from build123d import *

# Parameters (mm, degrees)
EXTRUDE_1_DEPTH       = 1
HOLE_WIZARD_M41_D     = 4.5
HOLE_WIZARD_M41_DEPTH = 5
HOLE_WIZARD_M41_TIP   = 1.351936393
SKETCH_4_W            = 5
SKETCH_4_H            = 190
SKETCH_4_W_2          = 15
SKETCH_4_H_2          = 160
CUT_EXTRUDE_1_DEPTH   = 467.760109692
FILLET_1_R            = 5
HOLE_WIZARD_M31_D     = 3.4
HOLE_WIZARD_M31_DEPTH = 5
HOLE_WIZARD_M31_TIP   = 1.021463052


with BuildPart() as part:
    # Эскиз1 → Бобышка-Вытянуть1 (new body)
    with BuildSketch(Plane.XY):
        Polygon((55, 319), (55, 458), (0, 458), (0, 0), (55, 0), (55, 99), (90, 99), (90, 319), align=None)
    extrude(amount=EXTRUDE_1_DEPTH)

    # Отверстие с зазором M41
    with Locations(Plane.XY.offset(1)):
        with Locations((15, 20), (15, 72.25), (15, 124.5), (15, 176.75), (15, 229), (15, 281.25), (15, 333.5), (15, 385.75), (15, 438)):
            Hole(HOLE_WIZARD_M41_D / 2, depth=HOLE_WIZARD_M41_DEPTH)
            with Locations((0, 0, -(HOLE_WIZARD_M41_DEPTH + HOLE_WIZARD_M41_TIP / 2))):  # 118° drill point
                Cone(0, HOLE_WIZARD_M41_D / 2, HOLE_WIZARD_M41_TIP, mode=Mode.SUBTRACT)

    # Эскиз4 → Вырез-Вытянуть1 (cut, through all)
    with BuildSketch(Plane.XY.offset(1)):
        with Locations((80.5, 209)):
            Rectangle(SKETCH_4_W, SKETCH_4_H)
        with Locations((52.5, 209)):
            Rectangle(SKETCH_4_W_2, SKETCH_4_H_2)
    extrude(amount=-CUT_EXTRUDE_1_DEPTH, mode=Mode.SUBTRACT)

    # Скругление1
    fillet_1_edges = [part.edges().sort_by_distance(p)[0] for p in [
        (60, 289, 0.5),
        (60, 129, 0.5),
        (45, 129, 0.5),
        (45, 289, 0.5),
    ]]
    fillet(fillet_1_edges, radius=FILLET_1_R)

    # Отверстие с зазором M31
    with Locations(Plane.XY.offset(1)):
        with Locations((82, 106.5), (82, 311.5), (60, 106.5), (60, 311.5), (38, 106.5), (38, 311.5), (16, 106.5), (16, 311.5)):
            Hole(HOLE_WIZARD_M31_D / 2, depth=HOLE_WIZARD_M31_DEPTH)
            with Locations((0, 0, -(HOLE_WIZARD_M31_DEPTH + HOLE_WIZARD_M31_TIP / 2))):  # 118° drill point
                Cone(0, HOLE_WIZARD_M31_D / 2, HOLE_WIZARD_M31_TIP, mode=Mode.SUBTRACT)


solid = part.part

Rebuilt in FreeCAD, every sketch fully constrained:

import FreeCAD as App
import Part
import Sketcher

V = App.Vector
Q = App.Units.Quantity


def edges_at(feature, points):
    """Names of the edges that pass closest to the given points."""
    edges = feature.Shape.Edges
    near = lambda p: min(range(len(edges)), key=lambda i: edges[i].distToShape(Part.Vertex(*p))[0])
    return sorted({f"Edge{near(p) + 1}" for p in points})

doc = App.newDocument("Part")
body = doc.addObject("PartDesign::Body", "Body")

sketch1 = doc.addObject("Sketcher::SketchObject", "Sketch")
body.addObject(sketch1)
sketch1.AttachmentSupport = (doc.XY_Plane, [""])
sketch1.MapMode = "FlatFace"
sketch1.addGeometry(Part.LineSegment(V(55, 319, 0), V(55, 458, 0)), False)
sketch1.addGeometry(Part.LineSegment(V(55, 458, 0), V(0, 458, 0)), False)
sketch1.addGeometry(Part.LineSegment(V(0, 458, 0), V(0, 0, 0)), False)
sketch1.addGeometry(Part.LineSegment(V(0, 0, 0), V(55, 0, 0)), False)
sketch1.addGeometry(Part.LineSegment(V(55, 0, 0), V(55, 99, 0)), False)
sketch1.addGeometry(Part.LineSegment(V(55, 99, 0), V(90, 99, 0)), False)
sketch1.addGeometry(Part.LineSegment(V(90, 99, 0), V(90, 319, 0)), False)
sketch1.addGeometry(Part.LineSegment(V(90, 319, 0), V(55, 319, 0)), False)
sketch1.addConstraint(Sketcher.Constraint("Coincident", 0, 2, 1, 1))
sketch1.addConstraint(Sketcher.Constraint("Coincident", 1, 2, 2, 1))
sketch1.addConstraint(Sketcher.Constraint("Coincident", 2, 2, 3, 1))
sketch1.addConstraint(Sketcher.Constraint("Coincident", 3, 2, 4, 1))
sketch1.addConstraint(Sketcher.Constraint("Coincident", 4, 2, 5, 1))
sketch1.addConstraint(Sketcher.Constraint("Coincident", 5, 2, 6, 1))
sketch1.addConstraint(Sketcher.Constraint("Coincident", 6, 2, 7, 1))
sketch1.addConstraint(Sketcher.Constraint("Coincident", 7, 2, 0, 1))
sketch1.addConstraint(Sketcher.Constraint("Vertical", 0))
sketch1.addConstraint(Sketcher.Constraint("Horizontal", 1))
sketch1.addConstraint(Sketcher.Constraint("Vertical", 2))
sketch1.addConstraint(Sketcher.Constraint("Horizontal", 3))
sketch1.addConstraint(Sketcher.Constraint("Vertical", 4))
sketch1.addConstraint(Sketcher.Constraint("Horizontal", 5))
sketch1.addConstraint(Sketcher.Constraint("Vertical", 6))
sketch1.addConstraint(Sketcher.Constraint("Horizontal", 7))
sketch1.addConstraint(Sketcher.Constraint("Coincident", 2, 2, -1, 1))
sketch1.addConstraint(Sketcher.Constraint("Vertical", 0, 2, 3, 2))
sketch1.addConstraint(Sketcher.Constraint("DistanceX", 1, 2, 1, 1, Q("55 mm")))
sketch1.addConstraint(Sketcher.Constraint("DistanceX", 5, 1, 5, 2, Q("35 mm")))
sketch1.addConstraint(Sketcher.Constraint("DistanceY", 0, 1, 0, 2, Q("139 mm")))
sketch1.addConstraint(Sketcher.Constraint("DistanceY", 2, 2, 2, 1, Q("458 mm")))
sketch1.addConstraint(Sketcher.Constraint("DistanceY", 4, 1, 4, 2, Q("99 mm")))
pad1 = doc.addObject("PartDesign::Pad", "Pad")
body.addObject(pad1)
pad1.Profile = sketch1
pad1.Length = 1

sketch2 = doc.addObject("Sketcher::SketchObject", "Sketch001")
body.addObject(sketch2)
sketch2.AttachmentSupport = (doc.XY_Plane, [""])
sketch2.MapMode = "FlatFace"
sketch2.AttachmentOffset = App.Placement(V(0, 0, 1), App.Rotation())
sketch2.addGeometry(Part.Circle(V(15, 20, 0), V(0, 0, 1), 2.25), False)
sketch2.addGeometry(Part.Circle(V(15, 72.25, 0), V(0, 0, 1), 2.25), False)
sketch2.addGeometry(Part.Circle(V(15, 124.5, 0), V(0, 0, 1), 2.25), False)
sketch2.addGeometry(Part.Circle(V(15, 176.75, 0), V(0, 0, 1), 2.25), False)
sketch2.addGeometry(Part.Circle(V(15, 229, 0), V(0, 0, 1), 2.25), False)
sketch2.addGeometry(Part.Circle(V(15, 281.25, 0), V(0, 0, 1), 2.25), False)
sketch2.addGeometry(Part.Circle(V(15, 333.5, 0), V(0, 0, 1), 2.25), False)
sketch2.addGeometry(Part.Circle(V(15, 385.75, 0), V(0, 0, 1), 2.25), False)
sketch2.addGeometry(Part.Circle(V(15, 438, 0), V(0, 0, 1), 2.25), False)
sketch2.addConstraint(Sketcher.Constraint("Equal", 0, 1))
sketch2.addConstraint(Sketcher.Constraint("Equal", 1, 2))
sketch2.addConstraint(Sketcher.Constraint("Equal", 2, 3))
sketch2.addConstraint(Sketcher.Constraint("Equal", 3, 4))
sketch2.addConstraint(Sketcher.Constraint("Equal", 4, 5))
sketch2.addConstraint(Sketcher.Constraint("Equal", 5, 6))
sketch2.addConstraint(Sketcher.Constraint("Equal", 6, 7))
sketch2.addConstraint(Sketcher.Constraint("Equal", 7, 8))
sketch2.addConstraint(Sketcher.Constraint("Vertical", 0, 3, 1, 3))
sketch2.addConstraint(Sketcher.Constraint("Vertical", 1, 3, 2, 3))
sketch2.addConstraint(Sketcher.Constraint("Vertical", 2, 3, 3, 3))
sketch2.addConstraint(Sketcher.Constraint("Vertical", 3, 3, 4, 3))
sketch2.addConstraint(Sketcher.Constraint("Vertical", 4, 3, 5, 3))
sketch2.addConstraint(Sketcher.Constraint("Vertical", 5, 3, 6, 3))
sketch2.addConstraint(Sketcher.Constraint("Vertical", 6, 3, 7, 3))
sketch2.addConstraint(Sketcher.Constraint("Vertical", 7, 3, 8, 3))
sketch2.addConstraint(Sketcher.Constraint("Diameter", 0, Q("4.5 mm")))
sketch2.addConstraint(Sketcher.Constraint("DistanceX", -1, 1, 0, 3, Q("15 mm")))
sketch2.addConstraint(Sketcher.Constraint("DistanceY", -1, 1, 0, 3, Q("20 mm")))
sketch2.addConstraint(Sketcher.Constraint("DistanceY", -1, 1, 4, 3, Q("229 mm")))
sketch2.addConstraint(Sketcher.Constraint("DistanceY", -1, 1, 8, 3, Q("438 mm")))
sketch2.addConstraint(Sketcher.Constraint("DistanceY", 1, 3, 5, 3, Q("209 mm")))
sketch2.addConstraint(Sketcher.Constraint("DistanceY", 2, 3, 6, 3, Q("209 mm")))
sketch2.addConstraint(Sketcher.Constraint("DistanceY", 3, 3, 7, 3, Q("209 mm")))
sketch2.addConstraint(Sketcher.Constraint("DistanceY", -1, 1, 2, 3, Q("124.5 mm")))
sketch2.addConstraint(Sketcher.Constraint("DistanceY", 1, 3, 3, 3, Q("104.5 mm")))
sketch2.addConstraint(Sketcher.Constraint("DistanceY", -1, 1, 1, 3, Q("72.25 mm")))
doc.recompute()
hole = doc.addObject("PartDesign::Hole", "Hole")
body.addObject(hole)
hole.Profile = sketch2
hole.ThreadType = "None"
hole.Diameter = 4.5
hole.DepthType = "Dimension"
hole.Depth = 5
hole.DrillPoint = "Angled"
hole.DrillPointAngle = 118

sketch3 = doc.addObject("Sketcher::SketchObject", "Sketch002")
body.addObject(sketch3)
sketch3.AttachmentSupport = (doc.XY_Plane, [""])
sketch3.MapMode = "FlatFace"
sketch3.AttachmentOffset = App.Placement(V(0, 0, 1), App.Rotation())
sketch3.addGeometry(Part.LineSegment(V(78, 304, 0), V(78, 114, 0)), False)
sketch3.addGeometry(Part.LineSegment(V(78, 114, 0), V(83, 114, 0)), False)
sketch3.addGeometry(Part.LineSegment(V(83, 114, 0), V(83, 304, 0)), False)
sketch3.addGeometry(Part.LineSegment(V(83, 304, 0), V(78, 304, 0)), False)
sketch3.addGeometry(Part.LineSegment(V(45, 289, 0), V(45, 129, 0)), False)
sketch3.addGeometry(Part.LineSegment(V(45, 129, 0), V(60, 129, 0)), False)
sketch3.addGeometry(Part.LineSegment(V(60, 129, 0), V(60, 289, 0)), False)
sketch3.addGeometry(Part.LineSegment(V(60, 289, 0), V(45, 289, 0)), False)
sketch3.addConstraint(Sketcher.Constraint("Coincident", 0, 2, 1, 1))
sketch3.addConstraint(Sketcher.Constraint("Coincident", 1, 2, 2, 1))
sketch3.addConstraint(Sketcher.Constraint("Coincident", 2, 2, 3, 1))
sketch3.addConstraint(Sketcher.Constraint("Coincident", 3, 2, 0, 1))
sketch3.addConstraint(Sketcher.Constraint("Coincident", 4, 2, 5, 1))
sketch3.addConstraint(Sketcher.Constraint("Coincident", 5, 2, 6, 1))
sketch3.addConstraint(Sketcher.Constraint("Coincident", 6, 2, 7, 1))
sketch3.addConstraint(Sketcher.Constraint("Coincident", 7, 2, 4, 1))
sketch3.addConstraint(Sketcher.Constraint("Vertical", 0))
sketch3.addConstraint(Sketcher.Constraint("Horizontal", 1))
sketch3.addConstraint(Sketcher.Constraint("Vertical", 2))
sketch3.addConstraint(Sketcher.Constraint("Horizontal", 3))
sketch3.addConstraint(Sketcher.Constraint("Vertical", 4))
sketch3.addConstraint(Sketcher.Constraint("Horizontal", 5))
sketch3.addConstraint(Sketcher.Constraint("Vertical", 6))
sketch3.addConstraint(Sketcher.Constraint("Horizontal", 7))
sketch3.addConstraint(Sketcher.Constraint("DistanceX", 1, 1, 1, 2, Q("5 mm")))
sketch3.addConstraint(Sketcher.Constraint("DistanceX", 5, 1, 5, 2, Q("15 mm")))
sketch3.addConstraint(Sketcher.Constraint("DistanceY", 0, 2, 0, 1, Q("190 mm")))
sketch3.addConstraint(Sketcher.Constraint("DistanceY", 4, 2, 4, 1, Q("160 mm")))
sketch3.addConstraint(Sketcher.Constraint("DistanceX", -1, 1, 0, 2, Q("78 mm")))
sketch3.addConstraint(Sketcher.Constraint("DistanceY", -1, 1, 0, 2, Q("114 mm")))
sketch3.addConstraint(Sketcher.Constraint("DistanceX", -1, 1, 4, 2, Q("45 mm")))
sketch3.addConstraint(Sketcher.Constraint("DistanceY", -1, 1, 4, 2, Q("129 mm")))
pocket1 = doc.addObject("PartDesign::Pocket", "Pocket")
body.addObject(pocket1)
pocket1.Profile = sketch3
pocket1.Type = "ThroughAll"
doc.recompute()

fillet = doc.addObject("PartDesign::Fillet", "Fillet")
body.addObject(fillet)
fillet.Base = (pocket1, edges_at(pocket1, [
    (60, 289, 0.5),
    (60, 129, 0.5),
    (45, 129, 0.5),
    (45, 289, 0.5),
]))
fillet.Radius = 5

sketch4 = doc.addObject("Sketcher::SketchObject", "Sketch003")
body.addObject(sketch4)
sketch4.AttachmentSupport = (doc.XY_Plane, [""])
sketch4.MapMode = "FlatFace"
sketch4.AttachmentOffset = App.Placement(V(0, 0, 1), App.Rotation())
sketch4.addGeometry(Part.Circle(V(82, 106.5, 0), V(0, 0, 1), 1.7), False)
sketch4.addGeometry(Part.Circle(V(82, 311.5, 0), V(0, 0, 1), 1.7), False)
sketch4.addGeometry(Part.Circle(V(60, 106.5, 0), V(0, 0, 1), 1.7), False)
sketch4.addGeometry(Part.Circle(V(60, 311.5, 0), V(0, 0, 1), 1.7), False)
sketch4.addGeometry(Part.Circle(V(38, 106.5, 0), V(0, 0, 1), 1.7), False)
sketch4.addGeometry(Part.Circle(V(38, 311.5, 0), V(0, 0, 1), 1.7), False)
sketch4.addGeometry(Part.Circle(V(16, 106.5, 0), V(0, 0, 1), 1.7), False)
sketch4.addGeometry(Part.Circle(V(16, 311.5, 0), V(0, 0, 1), 1.7), False)
sketch4.addConstraint(Sketcher.Constraint("Equal", 0, 1))
sketch4.addConstraint(Sketcher.Constraint("Equal", 1, 2))
sketch4.addConstraint(Sketcher.Constraint("Equal", 2, 3))
sketch4.addConstraint(Sketcher.Constraint("Equal", 3, 4))
sketch4.addConstraint(Sketcher.Constraint("Equal", 4, 5))
sketch4.addConstraint(Sketcher.Constraint("Equal", 5, 6))
sketch4.addConstraint(Sketcher.Constraint("Equal", 6, 7))
sketch4.addConstraint(Sketcher.Constraint("Horizontal", 0, 3, 2, 3))
sketch4.addConstraint(Sketcher.Constraint("Horizontal", 1, 3, 3, 3))
sketch4.addConstraint(Sketcher.Constraint("Horizontal", 2, 3, 4, 3))
sketch4.addConstraint(Sketcher.Constraint("Horizontal", 3, 3, 5, 3))
sketch4.addConstraint(Sketcher.Constraint("Horizontal", 4, 3, 6, 3))
sketch4.addConstraint(Sketcher.Constraint("Horizontal", 5, 3, 7, 3))
sketch4.addConstraint(Sketcher.Constraint("Vertical", 0, 3, 1, 3))
sketch4.addConstraint(Sketcher.Constraint("Vertical", 2, 3, 3, 3))
sketch4.addConstraint(Sketcher.Constraint("Vertical", 4, 3, 5, 3))
sketch4.addConstraint(Sketcher.Constraint("Vertical", 6, 3, 7, 3))
sketch4.addConstraint(Sketcher.Constraint("Diameter", 0, Q("3.4 mm")))
sketch4.addConstraint(Sketcher.Constraint("DistanceX", -1, 1, 0, 3, Q("82 mm")))
sketch4.addConstraint(Sketcher.Constraint("DistanceX", -1, 1, 2, 3, Q("60 mm")))
sketch4.addConstraint(Sketcher.Constraint("DistanceX", -1, 1, 4, 3, Q("38 mm")))
sketch4.addConstraint(Sketcher.Constraint("DistanceX", -1, 1, 6, 3, Q("16 mm")))
sketch4.addConstraint(Sketcher.Constraint("DistanceY", 0, 3, 1, 3, Q("205 mm")))
sketch4.addConstraint(Sketcher.Constraint("DistanceY", -1, 1, 0, 3, Q("106.5 mm")))
doc.recompute()
hole2 = doc.addObject("PartDesign::Hole", "Hole001")
body.addObject(hole2)
hole2.Profile = sketch4
hole2.ThreadType = "None"
hole2.Diameter = 3.4
hole2.DepthType = "Dimension"
hole2.Depth = 5
hole2.DrillPoint = "Angled"
hole2.DrillPointAngle = 118

doc.recompute()
